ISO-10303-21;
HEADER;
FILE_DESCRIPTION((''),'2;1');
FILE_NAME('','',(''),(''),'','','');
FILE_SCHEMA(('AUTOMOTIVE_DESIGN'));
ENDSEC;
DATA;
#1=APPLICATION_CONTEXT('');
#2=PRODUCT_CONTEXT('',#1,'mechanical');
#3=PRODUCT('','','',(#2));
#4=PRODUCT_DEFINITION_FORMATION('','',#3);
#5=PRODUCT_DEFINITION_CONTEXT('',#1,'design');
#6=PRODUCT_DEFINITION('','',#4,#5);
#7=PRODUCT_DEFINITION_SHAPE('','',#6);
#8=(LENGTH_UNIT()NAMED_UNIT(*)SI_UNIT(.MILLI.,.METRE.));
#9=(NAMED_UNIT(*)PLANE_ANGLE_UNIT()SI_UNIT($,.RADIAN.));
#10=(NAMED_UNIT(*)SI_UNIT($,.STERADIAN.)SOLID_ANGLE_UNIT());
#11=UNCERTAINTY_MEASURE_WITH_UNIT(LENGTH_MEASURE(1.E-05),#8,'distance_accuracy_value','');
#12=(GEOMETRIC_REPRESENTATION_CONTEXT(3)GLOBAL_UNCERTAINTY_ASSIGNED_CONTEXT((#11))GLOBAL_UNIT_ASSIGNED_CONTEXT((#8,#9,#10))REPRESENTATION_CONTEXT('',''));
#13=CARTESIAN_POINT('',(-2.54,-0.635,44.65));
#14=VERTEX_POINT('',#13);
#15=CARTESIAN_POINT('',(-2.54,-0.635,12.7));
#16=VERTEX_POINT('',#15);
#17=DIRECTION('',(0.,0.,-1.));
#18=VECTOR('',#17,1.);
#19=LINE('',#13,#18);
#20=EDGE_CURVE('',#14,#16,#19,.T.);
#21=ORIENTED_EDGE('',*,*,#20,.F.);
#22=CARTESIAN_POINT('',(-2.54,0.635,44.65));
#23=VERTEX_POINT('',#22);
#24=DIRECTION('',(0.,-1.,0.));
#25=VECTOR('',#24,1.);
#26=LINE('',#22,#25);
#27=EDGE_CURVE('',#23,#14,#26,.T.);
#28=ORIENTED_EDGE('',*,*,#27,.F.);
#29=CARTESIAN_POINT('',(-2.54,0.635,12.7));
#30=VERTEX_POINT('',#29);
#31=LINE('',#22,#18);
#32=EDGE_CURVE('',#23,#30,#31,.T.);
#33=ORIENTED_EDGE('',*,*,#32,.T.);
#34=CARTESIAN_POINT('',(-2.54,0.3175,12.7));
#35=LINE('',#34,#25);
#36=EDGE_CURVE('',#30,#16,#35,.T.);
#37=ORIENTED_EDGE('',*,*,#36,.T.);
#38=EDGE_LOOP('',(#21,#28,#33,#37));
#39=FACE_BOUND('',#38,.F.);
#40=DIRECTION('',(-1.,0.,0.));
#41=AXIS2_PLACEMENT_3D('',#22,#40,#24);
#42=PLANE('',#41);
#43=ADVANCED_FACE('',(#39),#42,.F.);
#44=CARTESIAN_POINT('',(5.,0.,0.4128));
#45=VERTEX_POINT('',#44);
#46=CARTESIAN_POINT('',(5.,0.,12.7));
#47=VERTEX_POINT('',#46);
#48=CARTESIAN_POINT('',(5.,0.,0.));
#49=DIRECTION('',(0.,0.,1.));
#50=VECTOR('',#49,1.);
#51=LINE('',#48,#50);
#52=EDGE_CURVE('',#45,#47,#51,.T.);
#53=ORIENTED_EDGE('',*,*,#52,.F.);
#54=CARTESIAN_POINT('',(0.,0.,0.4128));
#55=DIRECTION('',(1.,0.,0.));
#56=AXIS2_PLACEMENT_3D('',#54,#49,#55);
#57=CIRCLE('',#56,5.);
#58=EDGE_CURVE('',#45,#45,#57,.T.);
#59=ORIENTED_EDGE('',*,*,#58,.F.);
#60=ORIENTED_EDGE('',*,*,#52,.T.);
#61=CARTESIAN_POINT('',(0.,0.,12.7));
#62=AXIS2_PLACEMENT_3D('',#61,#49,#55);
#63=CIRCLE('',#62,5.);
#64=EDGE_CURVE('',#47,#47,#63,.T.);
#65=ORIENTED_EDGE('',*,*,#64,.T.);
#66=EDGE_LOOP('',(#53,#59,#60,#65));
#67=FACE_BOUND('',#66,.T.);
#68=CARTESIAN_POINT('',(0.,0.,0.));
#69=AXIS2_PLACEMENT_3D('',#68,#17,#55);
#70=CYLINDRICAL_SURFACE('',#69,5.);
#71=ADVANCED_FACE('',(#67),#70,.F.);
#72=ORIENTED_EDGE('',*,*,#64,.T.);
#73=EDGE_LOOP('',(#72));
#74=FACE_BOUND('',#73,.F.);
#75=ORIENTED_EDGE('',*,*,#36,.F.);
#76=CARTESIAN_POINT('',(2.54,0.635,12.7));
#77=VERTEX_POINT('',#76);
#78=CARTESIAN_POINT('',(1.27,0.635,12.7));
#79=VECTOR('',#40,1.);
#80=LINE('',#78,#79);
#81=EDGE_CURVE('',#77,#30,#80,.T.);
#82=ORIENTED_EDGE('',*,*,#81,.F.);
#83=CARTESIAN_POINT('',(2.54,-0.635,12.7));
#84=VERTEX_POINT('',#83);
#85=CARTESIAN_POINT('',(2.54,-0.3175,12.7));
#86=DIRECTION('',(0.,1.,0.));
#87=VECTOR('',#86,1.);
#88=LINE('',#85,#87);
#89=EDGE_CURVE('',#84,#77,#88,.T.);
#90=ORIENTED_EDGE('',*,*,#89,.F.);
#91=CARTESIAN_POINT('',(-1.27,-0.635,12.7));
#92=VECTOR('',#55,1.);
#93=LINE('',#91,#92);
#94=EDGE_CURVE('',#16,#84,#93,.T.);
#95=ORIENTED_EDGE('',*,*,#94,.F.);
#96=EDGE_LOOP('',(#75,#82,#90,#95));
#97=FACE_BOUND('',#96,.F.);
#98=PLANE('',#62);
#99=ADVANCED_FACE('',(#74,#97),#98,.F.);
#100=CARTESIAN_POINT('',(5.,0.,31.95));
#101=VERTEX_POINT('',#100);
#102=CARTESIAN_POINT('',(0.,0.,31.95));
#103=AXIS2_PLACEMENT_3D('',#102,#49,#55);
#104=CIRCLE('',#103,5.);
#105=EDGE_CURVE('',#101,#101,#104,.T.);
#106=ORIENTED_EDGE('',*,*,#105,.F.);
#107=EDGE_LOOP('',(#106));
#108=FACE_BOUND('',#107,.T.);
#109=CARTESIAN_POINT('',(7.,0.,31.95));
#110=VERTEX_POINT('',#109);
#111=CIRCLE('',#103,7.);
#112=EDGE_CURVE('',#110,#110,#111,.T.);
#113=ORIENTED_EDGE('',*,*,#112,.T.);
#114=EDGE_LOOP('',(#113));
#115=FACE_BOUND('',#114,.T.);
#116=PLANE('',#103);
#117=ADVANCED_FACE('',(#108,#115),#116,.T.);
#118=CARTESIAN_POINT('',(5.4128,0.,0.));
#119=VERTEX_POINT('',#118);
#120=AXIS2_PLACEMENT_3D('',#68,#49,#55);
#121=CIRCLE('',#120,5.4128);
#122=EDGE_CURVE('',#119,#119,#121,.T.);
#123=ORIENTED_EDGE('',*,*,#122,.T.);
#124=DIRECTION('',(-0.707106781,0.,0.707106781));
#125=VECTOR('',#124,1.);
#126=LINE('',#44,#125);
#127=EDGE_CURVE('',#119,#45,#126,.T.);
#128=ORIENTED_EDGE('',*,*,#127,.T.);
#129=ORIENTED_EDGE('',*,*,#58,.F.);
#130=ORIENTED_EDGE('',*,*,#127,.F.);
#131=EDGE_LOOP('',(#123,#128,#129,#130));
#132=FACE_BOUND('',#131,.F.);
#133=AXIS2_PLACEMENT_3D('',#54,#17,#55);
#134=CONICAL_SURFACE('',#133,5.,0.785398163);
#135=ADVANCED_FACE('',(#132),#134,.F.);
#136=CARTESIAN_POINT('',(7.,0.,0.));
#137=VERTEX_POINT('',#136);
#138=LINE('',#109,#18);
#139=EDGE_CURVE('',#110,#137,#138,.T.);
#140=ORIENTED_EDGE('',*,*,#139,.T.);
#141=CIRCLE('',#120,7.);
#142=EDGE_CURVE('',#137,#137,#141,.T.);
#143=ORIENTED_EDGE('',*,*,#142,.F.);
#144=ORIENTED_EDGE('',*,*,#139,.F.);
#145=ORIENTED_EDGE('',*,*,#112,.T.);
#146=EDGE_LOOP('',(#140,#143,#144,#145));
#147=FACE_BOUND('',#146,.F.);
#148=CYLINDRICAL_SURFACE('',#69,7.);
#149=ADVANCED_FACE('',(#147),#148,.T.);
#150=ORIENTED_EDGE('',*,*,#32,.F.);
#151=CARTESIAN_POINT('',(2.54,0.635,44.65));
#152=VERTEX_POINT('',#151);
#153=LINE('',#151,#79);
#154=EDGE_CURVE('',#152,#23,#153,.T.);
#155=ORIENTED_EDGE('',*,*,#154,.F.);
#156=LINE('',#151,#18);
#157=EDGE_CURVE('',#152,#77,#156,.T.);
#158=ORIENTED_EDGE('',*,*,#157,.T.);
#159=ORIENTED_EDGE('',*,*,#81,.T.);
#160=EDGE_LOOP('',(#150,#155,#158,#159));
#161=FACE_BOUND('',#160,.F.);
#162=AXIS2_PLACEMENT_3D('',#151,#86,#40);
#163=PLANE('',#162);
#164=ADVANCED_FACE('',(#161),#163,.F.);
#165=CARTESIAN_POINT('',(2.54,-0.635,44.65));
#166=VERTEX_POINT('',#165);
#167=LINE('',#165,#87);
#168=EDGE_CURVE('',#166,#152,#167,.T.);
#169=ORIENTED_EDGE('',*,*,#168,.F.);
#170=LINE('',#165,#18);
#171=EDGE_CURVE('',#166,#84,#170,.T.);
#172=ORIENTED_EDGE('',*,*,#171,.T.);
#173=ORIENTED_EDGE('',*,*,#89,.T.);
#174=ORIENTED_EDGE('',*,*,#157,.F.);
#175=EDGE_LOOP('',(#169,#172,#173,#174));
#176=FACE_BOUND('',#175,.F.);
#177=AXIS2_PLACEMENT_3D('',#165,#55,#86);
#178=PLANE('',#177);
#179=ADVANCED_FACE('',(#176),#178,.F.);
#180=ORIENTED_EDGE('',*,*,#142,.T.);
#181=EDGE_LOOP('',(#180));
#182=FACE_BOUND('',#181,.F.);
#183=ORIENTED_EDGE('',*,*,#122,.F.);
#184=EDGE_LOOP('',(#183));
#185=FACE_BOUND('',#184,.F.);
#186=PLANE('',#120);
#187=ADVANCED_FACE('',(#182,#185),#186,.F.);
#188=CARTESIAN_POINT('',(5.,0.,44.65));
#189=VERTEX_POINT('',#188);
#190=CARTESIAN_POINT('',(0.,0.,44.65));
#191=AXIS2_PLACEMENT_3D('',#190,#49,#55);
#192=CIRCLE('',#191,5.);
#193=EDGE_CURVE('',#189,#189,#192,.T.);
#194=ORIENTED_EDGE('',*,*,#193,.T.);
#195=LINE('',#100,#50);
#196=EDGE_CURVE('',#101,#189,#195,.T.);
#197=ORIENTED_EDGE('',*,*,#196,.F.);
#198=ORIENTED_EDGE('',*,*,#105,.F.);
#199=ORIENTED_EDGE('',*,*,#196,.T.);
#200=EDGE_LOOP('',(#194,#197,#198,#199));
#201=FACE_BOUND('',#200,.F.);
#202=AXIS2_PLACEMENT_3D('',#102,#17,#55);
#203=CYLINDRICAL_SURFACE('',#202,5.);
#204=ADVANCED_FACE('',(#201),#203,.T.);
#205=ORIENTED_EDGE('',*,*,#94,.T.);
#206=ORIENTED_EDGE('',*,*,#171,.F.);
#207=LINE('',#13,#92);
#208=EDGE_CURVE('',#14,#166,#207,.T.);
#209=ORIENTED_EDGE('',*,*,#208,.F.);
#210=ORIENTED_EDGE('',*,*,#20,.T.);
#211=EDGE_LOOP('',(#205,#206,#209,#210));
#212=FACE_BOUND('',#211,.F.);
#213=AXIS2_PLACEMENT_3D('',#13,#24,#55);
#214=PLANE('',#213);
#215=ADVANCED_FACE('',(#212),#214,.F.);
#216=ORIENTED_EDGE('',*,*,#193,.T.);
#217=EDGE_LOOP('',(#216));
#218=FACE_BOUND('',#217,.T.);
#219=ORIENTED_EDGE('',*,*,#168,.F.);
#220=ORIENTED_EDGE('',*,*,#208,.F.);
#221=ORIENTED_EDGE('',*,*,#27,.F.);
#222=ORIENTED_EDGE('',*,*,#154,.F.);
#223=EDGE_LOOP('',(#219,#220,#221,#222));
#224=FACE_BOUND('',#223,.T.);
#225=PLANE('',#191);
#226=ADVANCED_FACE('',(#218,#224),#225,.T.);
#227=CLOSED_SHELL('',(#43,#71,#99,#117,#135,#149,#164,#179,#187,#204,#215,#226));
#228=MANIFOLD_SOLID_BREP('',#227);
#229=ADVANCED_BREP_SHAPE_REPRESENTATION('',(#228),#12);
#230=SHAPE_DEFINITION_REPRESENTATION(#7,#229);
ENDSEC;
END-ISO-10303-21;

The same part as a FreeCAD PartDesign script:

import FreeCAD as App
import Part
import Sketcher
from FreeCAD import Vector
Q = App.Units.Quantity


def edges_at(feature, points):
    """Names of the edges that pass closest to the given points."""
    edges = feature.Shape.Edges
    near = lambda p: min(range(len(edges)), key=lambda i: edges[i].distToShape(Part.Vertex(*p))[0])
    return sorted({f"Edge{near(p) + 1}" for p in points})

doc = App.newDocument("Part")
params = doc.addObject("Spreadsheet::Sheet", "Params")
for row, (alias, value) in enumerate([
    ("pad1_length", "0.5 in"),
    ("pad2_length", "19.25 mm"),
    ("chamfer_size", "0.4128 mm"),
    ("pad3_length", "0.5 in"),
    ("sketch4_width", "0.2 in"),
    ("sketch4_height", "0.05 in"),
], start=1):
    params.set(f"A{row}", alias)
    params.set(f"B{row}", "=" + value)
    params.setAlias(f"B{row}", alias)

body = doc.addObject("PartDesign::Body", "Body")

sketch1 = body.newObject("Sketcher::SketchObject", "Sketch")
sketch1.AttachmentSupport = (doc.getObject("XY_Plane"), [""])
sketch1.MapMode = "FlatFace"
sketch1.addGeometry([
    Part.Circle(Vector(0, 0, 0), Vector(0, 0, 1), 7),
    Part.Circle(Vector(0, 0, 0), Vector(0, 0, 1), 5),
], False)
sketch1.addConstraint([
    Sketcher.Constraint("Coincident", 0, 3, -1, 1),
    Sketcher.Constraint("Coincident", 1, 3, -1, 1),
    Sketcher.Constraint("Diameter", 1, Q("0.3937 in")),
    Sketcher.Constraint("Diameter", 0, 14.0),
])
pad1 = body.newObject("PartDesign::Pad", "Pad")
pad1.Profile = sketch1
pad1.setExpression("Length", "Params.pad1_length")

sketch2 = body.newObject("Sketcher::SketchObject", "Sketch001")
sketch2.AttachmentSupport = (doc.getObject("XY_Plane"), [""])
sketch2.MapMode = "FlatFace"
sketch2.AttachmentOffset = App.Placement(Vector(0, 0, 0.5 * 25.4), App.Rotation())
sketch2.addGeometry(Part.Circle(Vector(0, 0, 0), Vector(0, 0, 1), 7), False)
sketch2.addConstraint([
    Sketcher.Constraint("Coincident", 0, 3, -1, 1),
    Sketcher.Constraint("Diameter", 0, 14.0),
])
pad2 = body.newObject("PartDesign::Pad", "Pad001")
pad2.Profile = sketch2
pad2.setExpression("Length", "Params.pad2_length")
doc.recompute()

chamfer = body.newObject("PartDesign::Chamfer", "Chamfer")
chamfer.Base = (pad2, edges_at(pad2, [(-5, 0, 0)]))
chamfer.setExpression("Size", "Params.chamfer_size")

sketch3 = body.newObject("Sketcher::SketchObject", "Sketch002")
sketch3.AttachmentSupport = (doc.getObject("XY_Plane"), [""])
sketch3.MapMode = "FlatFace"
sketch3.AttachmentOffset = App.Placement(Vector(0, 0, 31.95), App.Rotation())
sketch3.addGeometry(Part.Circle(Vector(0, 0, 0), Vector(0, 0, 1), 5), False)
sketch3.addConstraint([
    Sketcher.Constraint("Coincident", 0, 3, -1, 1),
    Sketcher.Constraint("Diameter", 0, Q("0.3937 in")),
])
pad3 = body.newObject("PartDesign::Pad", "Pad002")
pad3.Profile = sketch3
pad3.setExpression("Length", "Params.pad3_length")

sketch4 = body.newObject("Sketcher::SketchObject", "Sketch003")
sketch4.AttachmentSupport = (doc.getObject("XY_Plane"), [""])
sketch4.MapMode = "FlatFace"
sketch4.AttachmentOffset = App.Placement(Vector(0, 0, 44.65), App.Rotation())
sketch4.addGeometry([
    Part.LineSegment(Vector(2.54, -0.635, 0), Vector(2.54, 0.635, 0)),
    Part.LineSegment(Vector(2.54, 0.635, 0), Vector(-2.54, 0.635, 0)),
    Part.LineSegment(Vector(-2.54, 0.635, 0), Vector(-2.54, -0.635, 0)),
    Part.LineSegment(Vector(-2.54, -0.635, 0), Vector(2.54, -0.635, 0)),
], False)
sketch4.addConstraint([
    Sketcher.Constraint("Coincident", 0, 2, 1, 1),
    Sketcher.Constraint("Coincident", 1, 2, 2, 1),
    Sketcher.Constraint("Coincident", 2, 2, 3, 1),
    Sketcher.Constraint("Coincident", 3, 2, 0, 1),
    Sketcher.Constraint("Vertical", 0),
    Sketcher.Constraint("Horizontal", 1),
    Sketcher.Constraint("Vertical", 2),
    Sketcher.Constraint("Horizontal", 3),
    Sketcher.Constraint("Symmetric", 0, 2, 2, 2, -1, 1),
    Sketcher.Constraint("DistanceX", 1, 2, 1, 1, Q("0.2 in")),
    Sketcher.Constraint("DistanceY", 0, 1, 0, 2, Q("0.05 in")),
])
sketch4.setExpression("Constraints[9]", "Params.sketch4_width")
sketch4.setExpression("Constraints[10]", "Params.sketch4_height")
pocket1 = body.newObject("PartDesign::Pocket", "Pocket")
pocket1.Profile = sketch4
pocket1.Type = "ThroughAll"

doc.recompute()
